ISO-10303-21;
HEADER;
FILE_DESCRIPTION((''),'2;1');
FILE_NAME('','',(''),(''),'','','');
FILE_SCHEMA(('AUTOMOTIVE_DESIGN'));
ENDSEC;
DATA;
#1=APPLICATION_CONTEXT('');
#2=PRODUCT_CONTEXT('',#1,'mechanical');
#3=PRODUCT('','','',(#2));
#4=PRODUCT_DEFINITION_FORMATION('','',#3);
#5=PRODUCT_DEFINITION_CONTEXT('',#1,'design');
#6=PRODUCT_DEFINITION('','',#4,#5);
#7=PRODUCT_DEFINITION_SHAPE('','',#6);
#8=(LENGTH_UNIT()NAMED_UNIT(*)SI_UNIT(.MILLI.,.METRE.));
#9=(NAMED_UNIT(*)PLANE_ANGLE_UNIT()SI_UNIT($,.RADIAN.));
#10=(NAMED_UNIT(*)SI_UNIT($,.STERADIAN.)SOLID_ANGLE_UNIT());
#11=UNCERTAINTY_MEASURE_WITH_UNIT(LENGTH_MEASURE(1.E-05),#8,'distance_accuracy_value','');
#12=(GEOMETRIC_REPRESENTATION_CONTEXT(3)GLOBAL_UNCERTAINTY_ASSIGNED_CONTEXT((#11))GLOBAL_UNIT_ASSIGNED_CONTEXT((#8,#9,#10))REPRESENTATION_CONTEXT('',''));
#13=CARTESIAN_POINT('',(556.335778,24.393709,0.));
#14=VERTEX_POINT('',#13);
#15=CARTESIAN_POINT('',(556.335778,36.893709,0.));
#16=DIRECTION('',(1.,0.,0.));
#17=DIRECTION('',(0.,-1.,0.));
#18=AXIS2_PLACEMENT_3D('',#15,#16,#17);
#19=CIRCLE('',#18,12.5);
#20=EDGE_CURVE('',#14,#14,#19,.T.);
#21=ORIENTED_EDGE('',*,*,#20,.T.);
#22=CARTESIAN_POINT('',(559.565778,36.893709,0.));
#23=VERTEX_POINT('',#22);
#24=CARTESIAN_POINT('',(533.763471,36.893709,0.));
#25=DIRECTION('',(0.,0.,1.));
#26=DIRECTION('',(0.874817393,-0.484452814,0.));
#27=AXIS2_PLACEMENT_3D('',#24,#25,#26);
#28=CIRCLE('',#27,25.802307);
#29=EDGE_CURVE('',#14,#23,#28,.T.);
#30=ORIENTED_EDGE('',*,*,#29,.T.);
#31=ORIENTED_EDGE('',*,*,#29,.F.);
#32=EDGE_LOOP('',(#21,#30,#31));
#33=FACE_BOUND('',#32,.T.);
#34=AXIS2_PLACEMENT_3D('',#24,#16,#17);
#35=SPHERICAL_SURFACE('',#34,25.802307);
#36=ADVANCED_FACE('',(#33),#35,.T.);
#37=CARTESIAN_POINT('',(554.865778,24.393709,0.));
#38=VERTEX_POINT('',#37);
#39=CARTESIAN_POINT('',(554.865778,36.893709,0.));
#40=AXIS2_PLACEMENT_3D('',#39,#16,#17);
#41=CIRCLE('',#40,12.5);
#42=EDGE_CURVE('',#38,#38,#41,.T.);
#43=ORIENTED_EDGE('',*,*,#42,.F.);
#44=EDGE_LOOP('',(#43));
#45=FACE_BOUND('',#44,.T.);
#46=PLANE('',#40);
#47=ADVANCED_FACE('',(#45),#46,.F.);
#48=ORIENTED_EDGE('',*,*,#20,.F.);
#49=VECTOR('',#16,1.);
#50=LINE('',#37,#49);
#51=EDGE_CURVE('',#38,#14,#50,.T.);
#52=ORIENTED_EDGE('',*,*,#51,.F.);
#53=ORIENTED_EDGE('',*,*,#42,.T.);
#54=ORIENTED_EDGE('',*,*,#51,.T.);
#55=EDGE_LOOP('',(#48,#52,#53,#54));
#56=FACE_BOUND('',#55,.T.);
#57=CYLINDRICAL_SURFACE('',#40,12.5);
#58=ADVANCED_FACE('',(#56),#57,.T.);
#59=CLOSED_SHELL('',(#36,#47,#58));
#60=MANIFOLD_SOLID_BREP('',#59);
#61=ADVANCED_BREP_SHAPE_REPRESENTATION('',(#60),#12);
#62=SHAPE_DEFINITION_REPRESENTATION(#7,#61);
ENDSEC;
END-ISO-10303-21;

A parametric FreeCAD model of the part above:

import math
import FreeCAD as App
import Part
import Sketcher
Q = App.Units.Quantity

doc = App.newDocument("Part")
body = doc.addObject("PartDesign::Body", "Body")

# Sketch on XY plane
sketch1 = body.newObject("Sketcher::SketchObject", "Sketch")
sketch1.AttachmentSupport = (doc.getObject("XY_Plane"), [""])
sketch1.MapMode = "FlatFace"
sketch1.addGeometry(Part.LineSegment(App.Vector(554.9, 49.4, 0), App.Vector(554.9, 36.9, 0)), False)
sketch1.addGeometry(Part.LineSegment(App.Vector(554.9, 36.9, 0), App.Vector(559.6, 36.9, 0)), False)
sketch1.addGeometry(Part.ArcOfCircle(Part.Circle(App.Vector(533.8, 36.9, 0), App.Vector(0, 0, 1), 25.8), math.radians(0), math.radians(29)), False)
sketch1.addGeometry(Part.LineSegment(App.Vector(556.3, 49.4, 0), App.Vector(554.9, 49.4, 0)), False)
sketch1.addGeometry(Part.LineSegment(App.Vector(533.8, 36.9, 0), App.Vector(559.6, 36.9, 0)), True)  # axis
sketch1.addConstraint(Sketcher.Constraint("Coincident", 0, 2, 1, 1))
sketch1.addConstraint(Sketcher.Constraint("Coincident", 1, 2, 2, 1))
sketch1.addConstraint(Sketcher.Constraint("Coincident", 2, 2, 3, 1))
sketch1.addConstraint(Sketcher.Constraint("Coincident", 3, 2, 0, 1))
sketch1.addConstraint(Sketcher.Constraint("Vertical", 0))
sketch1.addConstraint(Sketcher.Constraint("Horizontal", 1))
sketch1.addConstraint(Sketcher.Constraint("Horizontal", 3))
sketch1.addConstraint(Sketcher.Constraint("Horizontal", 4))
sketch1.addConstraint(Sketcher.Constraint("Coincident", 4, 1, 2, 3))
sketch1.addConstraint(Sketcher.Constraint("Coincident", 4, 2, 1, 2))
sketch1.addConstraint(Sketcher.Constraint("DistanceX", 1, 1, 1, 2, Q("4.7 mm")))
sketch1.addConstraint(Sketcher.Constraint("DistanceY", 0, 2, 0, 1, Q("12.5 mm")))
sketch1.addConstraint(Sketcher.Constraint("DistanceX", 3, 2, 3, 1, Q("1.47 mm")))
sketch1.addConstraint(Sketcher.Constraint("DistanceX", -1, 1, 2, 3, Q("533.763471 mm")))
sketch1.addConstraint(Sketcher.Constraint("DistanceY", -1, 1, 2, 3, Q("36.893709 mm")))
revolution = body.newObject("PartDesign::Revolution", "Revolution")
revolution.Profile = sketch1
revolution.ReferenceAxis = (sketch1, ["Axis0"])
revolution.Angle = 360

doc.recompute()
